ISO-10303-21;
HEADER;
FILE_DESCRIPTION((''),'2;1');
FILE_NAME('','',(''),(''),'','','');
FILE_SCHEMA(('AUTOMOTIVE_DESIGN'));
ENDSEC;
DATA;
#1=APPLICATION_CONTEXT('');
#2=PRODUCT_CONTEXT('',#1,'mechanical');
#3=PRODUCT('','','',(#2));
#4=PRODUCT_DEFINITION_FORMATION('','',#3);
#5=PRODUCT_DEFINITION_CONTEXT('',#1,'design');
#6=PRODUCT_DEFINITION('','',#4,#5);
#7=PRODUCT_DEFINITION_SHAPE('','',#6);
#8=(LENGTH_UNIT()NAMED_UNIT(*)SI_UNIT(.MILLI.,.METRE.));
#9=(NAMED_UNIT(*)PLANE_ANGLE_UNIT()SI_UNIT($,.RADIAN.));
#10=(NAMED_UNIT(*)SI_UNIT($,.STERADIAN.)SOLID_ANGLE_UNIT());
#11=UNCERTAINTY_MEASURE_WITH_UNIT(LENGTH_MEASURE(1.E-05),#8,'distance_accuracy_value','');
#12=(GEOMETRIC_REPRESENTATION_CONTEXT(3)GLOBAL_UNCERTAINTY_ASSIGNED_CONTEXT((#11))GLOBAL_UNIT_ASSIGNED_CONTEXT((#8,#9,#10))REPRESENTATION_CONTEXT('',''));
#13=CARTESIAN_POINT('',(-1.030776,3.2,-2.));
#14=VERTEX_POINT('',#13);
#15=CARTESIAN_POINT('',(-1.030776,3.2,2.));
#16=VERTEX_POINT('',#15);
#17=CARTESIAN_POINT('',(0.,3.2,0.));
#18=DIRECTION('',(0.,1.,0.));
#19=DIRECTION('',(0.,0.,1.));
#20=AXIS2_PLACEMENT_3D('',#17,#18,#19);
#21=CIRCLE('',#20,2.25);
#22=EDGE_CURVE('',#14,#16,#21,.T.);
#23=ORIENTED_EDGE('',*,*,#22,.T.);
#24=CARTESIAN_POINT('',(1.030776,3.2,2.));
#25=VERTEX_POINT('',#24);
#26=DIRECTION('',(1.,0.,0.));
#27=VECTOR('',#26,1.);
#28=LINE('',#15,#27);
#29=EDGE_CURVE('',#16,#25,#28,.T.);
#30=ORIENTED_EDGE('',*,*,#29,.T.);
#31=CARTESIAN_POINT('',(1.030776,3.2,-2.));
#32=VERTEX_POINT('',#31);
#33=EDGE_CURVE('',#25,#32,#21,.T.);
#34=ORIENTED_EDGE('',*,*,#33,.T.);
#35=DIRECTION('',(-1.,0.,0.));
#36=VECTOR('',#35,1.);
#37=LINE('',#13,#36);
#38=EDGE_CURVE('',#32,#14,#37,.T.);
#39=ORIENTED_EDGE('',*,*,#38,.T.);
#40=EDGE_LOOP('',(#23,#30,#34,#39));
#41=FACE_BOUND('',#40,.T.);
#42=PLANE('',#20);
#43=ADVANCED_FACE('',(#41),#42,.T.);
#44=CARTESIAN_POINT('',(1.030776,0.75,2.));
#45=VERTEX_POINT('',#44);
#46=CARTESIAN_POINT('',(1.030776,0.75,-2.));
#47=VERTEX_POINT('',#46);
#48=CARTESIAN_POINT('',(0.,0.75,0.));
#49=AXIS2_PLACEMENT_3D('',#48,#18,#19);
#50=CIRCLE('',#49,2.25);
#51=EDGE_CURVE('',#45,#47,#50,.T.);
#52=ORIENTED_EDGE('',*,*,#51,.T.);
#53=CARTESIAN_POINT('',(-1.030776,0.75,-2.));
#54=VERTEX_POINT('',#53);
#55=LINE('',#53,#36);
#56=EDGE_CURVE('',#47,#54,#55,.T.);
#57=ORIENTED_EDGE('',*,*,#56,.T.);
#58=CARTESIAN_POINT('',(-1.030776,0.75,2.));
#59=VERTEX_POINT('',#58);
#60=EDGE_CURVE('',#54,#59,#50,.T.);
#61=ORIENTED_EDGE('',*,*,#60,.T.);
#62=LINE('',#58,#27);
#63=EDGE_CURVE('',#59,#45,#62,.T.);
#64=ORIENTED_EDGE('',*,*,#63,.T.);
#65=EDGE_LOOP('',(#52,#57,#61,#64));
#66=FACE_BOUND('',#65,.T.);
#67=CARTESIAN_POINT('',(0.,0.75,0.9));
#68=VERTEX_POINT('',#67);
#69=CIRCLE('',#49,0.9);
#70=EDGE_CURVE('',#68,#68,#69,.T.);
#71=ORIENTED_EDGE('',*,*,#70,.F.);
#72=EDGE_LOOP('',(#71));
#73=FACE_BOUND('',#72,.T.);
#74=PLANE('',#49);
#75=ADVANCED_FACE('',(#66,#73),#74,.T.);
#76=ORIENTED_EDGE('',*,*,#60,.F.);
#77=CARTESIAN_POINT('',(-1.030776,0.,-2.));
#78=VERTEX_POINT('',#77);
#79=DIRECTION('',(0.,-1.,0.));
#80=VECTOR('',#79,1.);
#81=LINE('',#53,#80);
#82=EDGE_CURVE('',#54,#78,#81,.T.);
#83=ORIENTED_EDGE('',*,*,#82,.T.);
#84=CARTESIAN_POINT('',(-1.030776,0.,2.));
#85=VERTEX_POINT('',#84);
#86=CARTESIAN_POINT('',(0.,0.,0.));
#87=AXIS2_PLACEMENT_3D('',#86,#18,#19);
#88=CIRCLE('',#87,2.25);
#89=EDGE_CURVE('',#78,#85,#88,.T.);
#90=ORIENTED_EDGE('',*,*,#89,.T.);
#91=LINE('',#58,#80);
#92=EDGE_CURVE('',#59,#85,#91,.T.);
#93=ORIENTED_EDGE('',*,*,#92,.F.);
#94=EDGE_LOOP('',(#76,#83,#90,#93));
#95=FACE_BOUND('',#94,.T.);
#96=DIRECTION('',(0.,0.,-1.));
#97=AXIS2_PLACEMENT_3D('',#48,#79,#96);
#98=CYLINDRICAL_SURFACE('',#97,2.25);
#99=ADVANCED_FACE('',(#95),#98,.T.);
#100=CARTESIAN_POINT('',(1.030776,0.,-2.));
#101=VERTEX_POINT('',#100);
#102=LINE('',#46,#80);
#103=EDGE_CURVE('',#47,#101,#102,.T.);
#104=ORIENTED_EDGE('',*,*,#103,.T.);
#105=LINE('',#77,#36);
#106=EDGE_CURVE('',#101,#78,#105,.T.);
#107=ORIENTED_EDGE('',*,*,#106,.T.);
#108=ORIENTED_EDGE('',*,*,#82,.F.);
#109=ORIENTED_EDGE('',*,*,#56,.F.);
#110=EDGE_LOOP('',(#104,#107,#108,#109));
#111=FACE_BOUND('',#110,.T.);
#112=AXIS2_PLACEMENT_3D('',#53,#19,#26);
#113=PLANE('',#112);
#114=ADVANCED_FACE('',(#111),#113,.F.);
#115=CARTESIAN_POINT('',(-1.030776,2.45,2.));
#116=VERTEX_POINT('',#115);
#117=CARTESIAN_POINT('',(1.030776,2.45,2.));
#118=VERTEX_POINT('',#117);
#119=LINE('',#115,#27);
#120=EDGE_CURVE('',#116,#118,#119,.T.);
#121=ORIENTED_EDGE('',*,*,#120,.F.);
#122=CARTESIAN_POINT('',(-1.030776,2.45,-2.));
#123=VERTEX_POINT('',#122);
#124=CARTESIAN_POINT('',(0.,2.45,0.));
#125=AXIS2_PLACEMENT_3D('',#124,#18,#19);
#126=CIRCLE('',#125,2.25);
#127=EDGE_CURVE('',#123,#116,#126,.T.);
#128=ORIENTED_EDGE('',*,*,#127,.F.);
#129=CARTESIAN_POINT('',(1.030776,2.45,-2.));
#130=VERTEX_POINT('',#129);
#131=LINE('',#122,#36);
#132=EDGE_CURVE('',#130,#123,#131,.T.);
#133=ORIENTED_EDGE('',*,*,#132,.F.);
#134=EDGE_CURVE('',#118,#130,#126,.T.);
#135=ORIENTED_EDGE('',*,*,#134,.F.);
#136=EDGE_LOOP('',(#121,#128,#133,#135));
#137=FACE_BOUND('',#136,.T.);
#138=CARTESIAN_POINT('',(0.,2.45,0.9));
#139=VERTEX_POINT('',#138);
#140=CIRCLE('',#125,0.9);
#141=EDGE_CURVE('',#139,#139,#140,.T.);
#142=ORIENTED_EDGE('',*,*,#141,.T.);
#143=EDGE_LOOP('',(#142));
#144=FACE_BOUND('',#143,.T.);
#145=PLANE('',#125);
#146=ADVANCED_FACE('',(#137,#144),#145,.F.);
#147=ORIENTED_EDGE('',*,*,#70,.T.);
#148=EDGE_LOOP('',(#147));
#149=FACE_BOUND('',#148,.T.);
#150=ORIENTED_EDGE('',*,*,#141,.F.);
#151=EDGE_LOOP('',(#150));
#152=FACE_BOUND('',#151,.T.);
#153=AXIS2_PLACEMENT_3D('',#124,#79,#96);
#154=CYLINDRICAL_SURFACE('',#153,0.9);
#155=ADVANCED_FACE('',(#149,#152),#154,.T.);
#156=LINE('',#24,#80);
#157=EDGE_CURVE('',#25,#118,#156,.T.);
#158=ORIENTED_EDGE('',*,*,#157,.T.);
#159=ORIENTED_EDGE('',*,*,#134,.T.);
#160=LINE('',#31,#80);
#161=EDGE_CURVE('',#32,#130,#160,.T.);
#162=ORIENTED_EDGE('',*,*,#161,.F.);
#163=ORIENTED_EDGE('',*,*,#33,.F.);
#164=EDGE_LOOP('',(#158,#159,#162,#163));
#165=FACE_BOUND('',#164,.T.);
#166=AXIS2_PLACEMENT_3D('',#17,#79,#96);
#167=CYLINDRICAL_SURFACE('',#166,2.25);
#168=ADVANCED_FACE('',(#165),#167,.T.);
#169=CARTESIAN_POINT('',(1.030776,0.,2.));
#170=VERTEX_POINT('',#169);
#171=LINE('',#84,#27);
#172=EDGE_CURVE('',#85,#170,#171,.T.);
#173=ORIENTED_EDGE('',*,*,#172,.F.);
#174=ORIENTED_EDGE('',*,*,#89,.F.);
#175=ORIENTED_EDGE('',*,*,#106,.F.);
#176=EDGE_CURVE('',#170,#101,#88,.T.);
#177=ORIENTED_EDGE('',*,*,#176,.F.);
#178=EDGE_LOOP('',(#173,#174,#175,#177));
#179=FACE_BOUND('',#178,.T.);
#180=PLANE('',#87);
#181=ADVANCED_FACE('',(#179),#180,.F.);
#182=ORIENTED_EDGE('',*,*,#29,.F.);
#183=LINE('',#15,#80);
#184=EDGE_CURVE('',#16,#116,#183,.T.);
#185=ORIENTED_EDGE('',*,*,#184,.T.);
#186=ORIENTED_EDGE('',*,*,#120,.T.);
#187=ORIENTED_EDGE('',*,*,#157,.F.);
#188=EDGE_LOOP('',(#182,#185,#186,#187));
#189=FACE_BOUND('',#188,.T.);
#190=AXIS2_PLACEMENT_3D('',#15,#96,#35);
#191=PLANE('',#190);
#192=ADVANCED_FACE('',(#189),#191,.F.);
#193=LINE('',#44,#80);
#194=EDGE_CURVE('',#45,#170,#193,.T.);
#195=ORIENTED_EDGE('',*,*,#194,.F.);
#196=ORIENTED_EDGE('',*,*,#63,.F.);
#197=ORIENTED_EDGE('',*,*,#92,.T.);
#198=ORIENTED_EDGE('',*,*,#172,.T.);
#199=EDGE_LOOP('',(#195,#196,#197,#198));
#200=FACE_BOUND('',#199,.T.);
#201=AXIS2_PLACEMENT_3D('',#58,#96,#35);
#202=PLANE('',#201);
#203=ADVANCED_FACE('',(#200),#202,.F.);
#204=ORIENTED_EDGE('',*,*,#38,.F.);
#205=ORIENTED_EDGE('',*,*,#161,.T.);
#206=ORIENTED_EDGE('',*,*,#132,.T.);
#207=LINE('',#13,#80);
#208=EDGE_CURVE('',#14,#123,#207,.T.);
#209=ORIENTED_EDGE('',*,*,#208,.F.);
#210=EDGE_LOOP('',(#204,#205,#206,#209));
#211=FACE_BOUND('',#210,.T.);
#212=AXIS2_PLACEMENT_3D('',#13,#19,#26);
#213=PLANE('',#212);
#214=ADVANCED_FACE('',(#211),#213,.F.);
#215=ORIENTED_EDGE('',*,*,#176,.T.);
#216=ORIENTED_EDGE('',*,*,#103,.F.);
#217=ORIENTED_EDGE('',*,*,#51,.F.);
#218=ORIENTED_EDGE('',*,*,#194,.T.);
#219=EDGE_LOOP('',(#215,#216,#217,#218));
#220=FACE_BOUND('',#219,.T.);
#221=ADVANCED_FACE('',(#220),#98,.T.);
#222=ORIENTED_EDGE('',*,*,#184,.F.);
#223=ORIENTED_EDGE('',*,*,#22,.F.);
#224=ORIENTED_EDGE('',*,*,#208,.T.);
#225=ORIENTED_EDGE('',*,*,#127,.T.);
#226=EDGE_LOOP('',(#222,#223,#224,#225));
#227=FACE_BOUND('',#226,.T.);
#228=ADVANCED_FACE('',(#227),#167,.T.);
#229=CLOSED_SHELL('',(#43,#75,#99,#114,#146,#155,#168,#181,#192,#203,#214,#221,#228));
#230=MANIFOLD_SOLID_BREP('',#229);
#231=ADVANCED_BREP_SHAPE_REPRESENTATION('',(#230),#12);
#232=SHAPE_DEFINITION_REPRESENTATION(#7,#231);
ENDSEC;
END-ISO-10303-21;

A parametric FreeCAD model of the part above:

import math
import FreeCAD as App
import Part
import Sketcher

V = App.Vector

doc = App.newDocument("Part")
body = doc.addObject("PartDesign::Body", "Body")

sketch1 = body.newObject("Sketcher::SketchObject", "Sketch")
sketch1.AttachmentSupport = (doc.getObject("XZ_Plane"), [""])
sketch1.MapMode = "FlatFace"
sketch1.addGeometry(Part.LineSegment(V(-1, 2, 0), V(1, 2, 0)), False)
sketch1.addGeometry(Part.ArcOfCircle(Part.Circle(V(0, 0, 0), V(0, 0, 1), 2.2), math.radians(-63), math.radians(63)), False)
sketch1.addGeometry(Part.LineSegment(V(1, -2, 0), V(-1, -2, 0)), False)
sketch1.addGeometry(Part.ArcOfCircle(Part.Circle(V(0, 0, 0), V(0, 0, 1), 2.2), math.radians(117), math.radians(243)), False)
sketch1.addConstraint(Sketcher.Constraint("Coincident", 0, 2, 1, 2))
sketch1.addConstraint(Sketcher.Constraint("Coincident", 1, 1, 2, 1))
sketch1.addConstraint(Sketcher.Constraint("Coincident", 2, 2, 3, 2))
sketch1.addConstraint(Sketcher.Constraint("Coincident", 3, 1, 0, 1))
sketch1.addConstraint(Sketcher.Constraint("Horizontal", 0))
sketch1.addConstraint(Sketcher.Constraint("Horizontal", 2))
sketch1.addConstraint(Sketcher.Constraint("Coincident", 1, 3, -1, 1))
sketch1.addConstraint(Sketcher.Constraint("Coincident", 3, 3, -1, 1))
sketch1.addConstraint(Sketcher.Constraint("Equal", 1, 3))
sketch1.addConstraint(Sketcher.Constraint("Vertical", 0, 2, 1, 1))
sketch1.addConstraint(Sketcher.Constraint("Radius", 1, 2.25))
sketch1.addConstraint(Sketcher.Constraint("DistanceY", -1, 1, 0, 2, 2.0))
pad1 = body.newObject("PartDesign::Pad", "Pad")
pad1.Profile = sketch1
pad1.Length = 0.75
pad1.Reversed = True

sketch2 = body.newObject("Sketcher::SketchObject", "Sketch001")
sketch2.AttachmentSupport = (doc.getObject("XZ_Plane"), [""])
sketch2.MapMode = "FlatFace"
sketch2.AttachmentOffset = App.Placement(V(0, 0, -0.75), App.Rotation())
sketch2.addGeometry(Part.Circle(V(0, 0, 0), V(0, 0, 1), 0.9), False)
sketch2.addConstraint(Sketcher.Constraint("Coincident", 0, 3, -1, 1))
sketch2.addConstraint(Sketcher.Constraint("Diameter", 0, 1.8))
pad2 = body.newObject("PartDesign::Pad", "Pad001")
pad2.Profile = sketch2
pad2.Length = 1.7
pad2.Reversed = True

sketch3 = body.newObject("Sketcher::SketchObject", "Sketch002")
sketch3.AttachmentSupport = (doc.getObject("XZ_Plane"), [""])
sketch3.MapMode = "FlatFace"
sketch3.AttachmentOffset = App.Placement(V(0, 0, -2.45), App.Rotation())
sketch3.addGeometry(Part.LineSegment(V(1, -2, 0), V(-1, -2, 0)), False)
sketch3.addGeometry(Part.ArcOfCircle(Part.Circle(V(0, 0, 0), V(0, 0, 1), 2.2), math.radians(117), math.radians(243)), False)
sketch3.addGeometry(Part.LineSegment(V(-1, 2, 0), V(1, 2, 0)), False)
sketch3.addGeometry(Part.ArcOfCircle(Part.Circle(V(0, 0, 0), V(0, 0, 1), 2.2), math.radians(-63), math.radians(63)), False)
sketch3.addConstraint(Sketcher.Constraint("Coincident", 0, 2, 1, 2))
sketch3.addConstraint(Sketcher.Constraint("Coincident", 1, 1, 2, 1))
sketch3.addConstraint(Sketcher.Constraint("Coincident", 2, 2, 3, 2))
sketch3.addConstraint(Sketcher.Constraint("Coincident", 3, 1, 0, 1))
sketch3.addConstraint(Sketcher.Constraint("Horizontal", 0))
sketch3.addConstraint(Sketcher.Constraint("Horizontal", 2))
sketch3.addConstraint(Sketcher.Constraint("Coincident", 1, 3, -1, 1))
sketch3.addConstraint(Sketcher.Constraint("Coincident", 3, 3, -1, 1))
sketch3.addConstraint(Sketcher.Constraint("Equal", 1, 3))
sketch3.addConstraint(Sketcher.Constraint("Vertical", 0, 2, 1, 1))
sketch3.addConstraint(Sketcher.Constraint("Radius", 1, 2.25))
sketch3.addConstraint(Sketcher.Constraint("DistanceY", 0, 2, -1, 1, 2.0))
pad3 = body.newObject("PartDesign::Pad", "Pad002")
pad3.Profile = sketch3
pad3.Length = 0.75
pad3.Reversed = True

doc.recompute()
